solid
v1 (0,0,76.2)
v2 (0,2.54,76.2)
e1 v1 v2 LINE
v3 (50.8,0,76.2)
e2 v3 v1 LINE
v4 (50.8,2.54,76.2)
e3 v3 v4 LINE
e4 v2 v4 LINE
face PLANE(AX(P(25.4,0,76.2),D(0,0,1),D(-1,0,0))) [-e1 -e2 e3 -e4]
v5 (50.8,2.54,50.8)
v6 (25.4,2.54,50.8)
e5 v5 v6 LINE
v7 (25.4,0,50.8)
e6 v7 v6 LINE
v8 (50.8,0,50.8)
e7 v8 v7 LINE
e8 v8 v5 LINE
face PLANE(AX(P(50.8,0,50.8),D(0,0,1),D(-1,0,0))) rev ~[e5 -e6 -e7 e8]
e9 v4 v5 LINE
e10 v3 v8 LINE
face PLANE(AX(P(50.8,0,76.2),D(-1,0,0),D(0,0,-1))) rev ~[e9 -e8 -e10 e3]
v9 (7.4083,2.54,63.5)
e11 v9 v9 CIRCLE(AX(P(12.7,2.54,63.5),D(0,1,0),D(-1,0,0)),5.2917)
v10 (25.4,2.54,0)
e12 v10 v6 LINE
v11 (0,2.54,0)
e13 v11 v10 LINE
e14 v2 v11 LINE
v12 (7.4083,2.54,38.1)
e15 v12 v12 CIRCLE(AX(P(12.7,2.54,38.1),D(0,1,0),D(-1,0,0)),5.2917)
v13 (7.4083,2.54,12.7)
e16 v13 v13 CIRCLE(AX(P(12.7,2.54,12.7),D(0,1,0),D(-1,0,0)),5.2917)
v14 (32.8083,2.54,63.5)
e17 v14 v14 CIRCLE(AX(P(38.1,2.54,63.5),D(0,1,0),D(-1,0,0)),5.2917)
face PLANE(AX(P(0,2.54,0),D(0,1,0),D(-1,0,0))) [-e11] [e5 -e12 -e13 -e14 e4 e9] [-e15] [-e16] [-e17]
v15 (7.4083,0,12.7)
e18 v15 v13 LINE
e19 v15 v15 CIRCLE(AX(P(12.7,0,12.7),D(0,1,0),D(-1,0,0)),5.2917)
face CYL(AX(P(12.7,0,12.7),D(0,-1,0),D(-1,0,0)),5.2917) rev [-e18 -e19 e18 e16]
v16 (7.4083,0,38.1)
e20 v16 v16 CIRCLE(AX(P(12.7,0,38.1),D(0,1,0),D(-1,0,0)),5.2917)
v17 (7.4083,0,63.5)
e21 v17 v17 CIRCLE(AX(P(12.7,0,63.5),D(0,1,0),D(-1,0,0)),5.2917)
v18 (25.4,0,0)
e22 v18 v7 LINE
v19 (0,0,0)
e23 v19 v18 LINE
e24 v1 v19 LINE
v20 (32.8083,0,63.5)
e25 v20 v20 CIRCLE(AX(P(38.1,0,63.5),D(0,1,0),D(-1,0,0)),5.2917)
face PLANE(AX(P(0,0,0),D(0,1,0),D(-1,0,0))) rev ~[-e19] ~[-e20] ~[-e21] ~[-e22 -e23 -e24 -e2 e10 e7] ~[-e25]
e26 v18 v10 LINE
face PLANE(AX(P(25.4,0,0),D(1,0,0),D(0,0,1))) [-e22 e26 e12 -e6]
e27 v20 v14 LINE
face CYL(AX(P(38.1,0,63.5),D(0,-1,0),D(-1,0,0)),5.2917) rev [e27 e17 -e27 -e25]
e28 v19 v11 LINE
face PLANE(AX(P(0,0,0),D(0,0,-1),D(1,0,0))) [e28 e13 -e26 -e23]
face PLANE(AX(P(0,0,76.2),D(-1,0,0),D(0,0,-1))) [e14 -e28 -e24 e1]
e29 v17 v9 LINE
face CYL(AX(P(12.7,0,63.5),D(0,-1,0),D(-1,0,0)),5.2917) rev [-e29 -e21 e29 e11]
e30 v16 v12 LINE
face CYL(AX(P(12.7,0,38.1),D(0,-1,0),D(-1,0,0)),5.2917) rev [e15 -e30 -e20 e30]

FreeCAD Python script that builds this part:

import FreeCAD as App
import Part
import Sketcher

V = App.Vector
Q = App.Units.Quantity


def add_polygon(sketch, points):
    """Adds a closed chain of lines whose ends are joined by coincident constraints."""
    first, n = sketch.GeometryCount, len(points)
    for a, b in zip(points, points[1:] + points[:1]):
        sketch.addGeometry(Part.LineSegment(App.Vector(*a, 0), App.Vector(*b, 0)), False)
    for i in range(n):
        sketch.addConstraint(Sketcher.Constraint("Coincident", first + i, 2, first + (i + 1) % n, 1))

doc = App.newDocument("Part")
body = doc.addObject("PartDesign::Body", "Body")

sketch1 = doc.addObject("Sketcher::SketchObject", "Sketch")
body.addObject(sketch1)
sketch1.AttachmentSupport = (doc.XZ_Plane, [""])
sketch1.MapMode = "FlatFace"
add_polygon(sketch1, [(25, 0), (0, 0), (0, 76), (51, 76), (51, 51), (25, 51)])
sketch1.addGeometry(Part.Circle(V(13, 13, 0), V(0, 0, 1), 5), False)
sketch1.addGeometry(Part.Circle(V(13, 38, 0), V(0, 0, 1), 5), False)
sketch1.addGeometry(Part.Circle(V(13, 64, 0), V(0, 0, 1), 5), False)
sketch1.addGeometry(Part.Circle(V(38, 64, 0), V(0, 0, 1), 5), False)
sketch1.addConstraint([
    Sketcher.Constraint("Horizontal", 0),
    Sketcher.Constraint("Vertical", 1),
    Sketcher.Constraint("Horizontal", 2),
    Sketcher.Constraint("Vertical", 3),
    Sketcher.Constraint("Horizontal", 4),
    Sketcher.Constraint("Vertical", 5),
    Sketcher.Constraint("Coincident", 0, 2, -1, 1),
    Sketcher.Constraint("Equal", 6, 7),
    Sketcher.Constraint("Equal", 7, 8),
    Sketcher.Constraint("Equal", 8, 9),
    Sketcher.Constraint("Horizontal", 8, 3, 9, 3),
    Sketcher.Constraint("Vertical", 6, 3, 7, 3),
    Sketcher.Constraint("Vertical", 7, 3, 8, 3),
    Sketcher.Constraint("Equal", 0, 4),
    Sketcher.Constraint("Equal", 4, 3),
    Sketcher.Constraint("Equal", 2, 5),
    Sketcher.Constraint("DistanceX", 0, 2, 0, 1, Q("1 in")),
    Sketcher.Constraint("DistanceY", 6, 3, 7, 3, Q("1 in")),
    Sketcher.Constraint("DistanceY", 7, 3, 8, 3, Q("1 in")),
    Sketcher.Constraint("DistanceX", 8, 3, 9, 3, Q("1 in")),
    Sketcher.Constraint("DistanceX", -1, 1, 6, 3, Q("0.5 in")),
    Sketcher.Constraint("DistanceY", -1, 1, 6, 3, Q("0.5 in")),
    Sketcher.Constraint("Diameter", 6, Q("10.5834 mm")),
])
pad1 = doc.addObject("PartDesign::Pad", "Pad")
body.addObject(pad1)
pad1.Profile = sketch1
pad1.Length = Q("0.1 in")
pad1.Reversed = True

doc.recompute()
